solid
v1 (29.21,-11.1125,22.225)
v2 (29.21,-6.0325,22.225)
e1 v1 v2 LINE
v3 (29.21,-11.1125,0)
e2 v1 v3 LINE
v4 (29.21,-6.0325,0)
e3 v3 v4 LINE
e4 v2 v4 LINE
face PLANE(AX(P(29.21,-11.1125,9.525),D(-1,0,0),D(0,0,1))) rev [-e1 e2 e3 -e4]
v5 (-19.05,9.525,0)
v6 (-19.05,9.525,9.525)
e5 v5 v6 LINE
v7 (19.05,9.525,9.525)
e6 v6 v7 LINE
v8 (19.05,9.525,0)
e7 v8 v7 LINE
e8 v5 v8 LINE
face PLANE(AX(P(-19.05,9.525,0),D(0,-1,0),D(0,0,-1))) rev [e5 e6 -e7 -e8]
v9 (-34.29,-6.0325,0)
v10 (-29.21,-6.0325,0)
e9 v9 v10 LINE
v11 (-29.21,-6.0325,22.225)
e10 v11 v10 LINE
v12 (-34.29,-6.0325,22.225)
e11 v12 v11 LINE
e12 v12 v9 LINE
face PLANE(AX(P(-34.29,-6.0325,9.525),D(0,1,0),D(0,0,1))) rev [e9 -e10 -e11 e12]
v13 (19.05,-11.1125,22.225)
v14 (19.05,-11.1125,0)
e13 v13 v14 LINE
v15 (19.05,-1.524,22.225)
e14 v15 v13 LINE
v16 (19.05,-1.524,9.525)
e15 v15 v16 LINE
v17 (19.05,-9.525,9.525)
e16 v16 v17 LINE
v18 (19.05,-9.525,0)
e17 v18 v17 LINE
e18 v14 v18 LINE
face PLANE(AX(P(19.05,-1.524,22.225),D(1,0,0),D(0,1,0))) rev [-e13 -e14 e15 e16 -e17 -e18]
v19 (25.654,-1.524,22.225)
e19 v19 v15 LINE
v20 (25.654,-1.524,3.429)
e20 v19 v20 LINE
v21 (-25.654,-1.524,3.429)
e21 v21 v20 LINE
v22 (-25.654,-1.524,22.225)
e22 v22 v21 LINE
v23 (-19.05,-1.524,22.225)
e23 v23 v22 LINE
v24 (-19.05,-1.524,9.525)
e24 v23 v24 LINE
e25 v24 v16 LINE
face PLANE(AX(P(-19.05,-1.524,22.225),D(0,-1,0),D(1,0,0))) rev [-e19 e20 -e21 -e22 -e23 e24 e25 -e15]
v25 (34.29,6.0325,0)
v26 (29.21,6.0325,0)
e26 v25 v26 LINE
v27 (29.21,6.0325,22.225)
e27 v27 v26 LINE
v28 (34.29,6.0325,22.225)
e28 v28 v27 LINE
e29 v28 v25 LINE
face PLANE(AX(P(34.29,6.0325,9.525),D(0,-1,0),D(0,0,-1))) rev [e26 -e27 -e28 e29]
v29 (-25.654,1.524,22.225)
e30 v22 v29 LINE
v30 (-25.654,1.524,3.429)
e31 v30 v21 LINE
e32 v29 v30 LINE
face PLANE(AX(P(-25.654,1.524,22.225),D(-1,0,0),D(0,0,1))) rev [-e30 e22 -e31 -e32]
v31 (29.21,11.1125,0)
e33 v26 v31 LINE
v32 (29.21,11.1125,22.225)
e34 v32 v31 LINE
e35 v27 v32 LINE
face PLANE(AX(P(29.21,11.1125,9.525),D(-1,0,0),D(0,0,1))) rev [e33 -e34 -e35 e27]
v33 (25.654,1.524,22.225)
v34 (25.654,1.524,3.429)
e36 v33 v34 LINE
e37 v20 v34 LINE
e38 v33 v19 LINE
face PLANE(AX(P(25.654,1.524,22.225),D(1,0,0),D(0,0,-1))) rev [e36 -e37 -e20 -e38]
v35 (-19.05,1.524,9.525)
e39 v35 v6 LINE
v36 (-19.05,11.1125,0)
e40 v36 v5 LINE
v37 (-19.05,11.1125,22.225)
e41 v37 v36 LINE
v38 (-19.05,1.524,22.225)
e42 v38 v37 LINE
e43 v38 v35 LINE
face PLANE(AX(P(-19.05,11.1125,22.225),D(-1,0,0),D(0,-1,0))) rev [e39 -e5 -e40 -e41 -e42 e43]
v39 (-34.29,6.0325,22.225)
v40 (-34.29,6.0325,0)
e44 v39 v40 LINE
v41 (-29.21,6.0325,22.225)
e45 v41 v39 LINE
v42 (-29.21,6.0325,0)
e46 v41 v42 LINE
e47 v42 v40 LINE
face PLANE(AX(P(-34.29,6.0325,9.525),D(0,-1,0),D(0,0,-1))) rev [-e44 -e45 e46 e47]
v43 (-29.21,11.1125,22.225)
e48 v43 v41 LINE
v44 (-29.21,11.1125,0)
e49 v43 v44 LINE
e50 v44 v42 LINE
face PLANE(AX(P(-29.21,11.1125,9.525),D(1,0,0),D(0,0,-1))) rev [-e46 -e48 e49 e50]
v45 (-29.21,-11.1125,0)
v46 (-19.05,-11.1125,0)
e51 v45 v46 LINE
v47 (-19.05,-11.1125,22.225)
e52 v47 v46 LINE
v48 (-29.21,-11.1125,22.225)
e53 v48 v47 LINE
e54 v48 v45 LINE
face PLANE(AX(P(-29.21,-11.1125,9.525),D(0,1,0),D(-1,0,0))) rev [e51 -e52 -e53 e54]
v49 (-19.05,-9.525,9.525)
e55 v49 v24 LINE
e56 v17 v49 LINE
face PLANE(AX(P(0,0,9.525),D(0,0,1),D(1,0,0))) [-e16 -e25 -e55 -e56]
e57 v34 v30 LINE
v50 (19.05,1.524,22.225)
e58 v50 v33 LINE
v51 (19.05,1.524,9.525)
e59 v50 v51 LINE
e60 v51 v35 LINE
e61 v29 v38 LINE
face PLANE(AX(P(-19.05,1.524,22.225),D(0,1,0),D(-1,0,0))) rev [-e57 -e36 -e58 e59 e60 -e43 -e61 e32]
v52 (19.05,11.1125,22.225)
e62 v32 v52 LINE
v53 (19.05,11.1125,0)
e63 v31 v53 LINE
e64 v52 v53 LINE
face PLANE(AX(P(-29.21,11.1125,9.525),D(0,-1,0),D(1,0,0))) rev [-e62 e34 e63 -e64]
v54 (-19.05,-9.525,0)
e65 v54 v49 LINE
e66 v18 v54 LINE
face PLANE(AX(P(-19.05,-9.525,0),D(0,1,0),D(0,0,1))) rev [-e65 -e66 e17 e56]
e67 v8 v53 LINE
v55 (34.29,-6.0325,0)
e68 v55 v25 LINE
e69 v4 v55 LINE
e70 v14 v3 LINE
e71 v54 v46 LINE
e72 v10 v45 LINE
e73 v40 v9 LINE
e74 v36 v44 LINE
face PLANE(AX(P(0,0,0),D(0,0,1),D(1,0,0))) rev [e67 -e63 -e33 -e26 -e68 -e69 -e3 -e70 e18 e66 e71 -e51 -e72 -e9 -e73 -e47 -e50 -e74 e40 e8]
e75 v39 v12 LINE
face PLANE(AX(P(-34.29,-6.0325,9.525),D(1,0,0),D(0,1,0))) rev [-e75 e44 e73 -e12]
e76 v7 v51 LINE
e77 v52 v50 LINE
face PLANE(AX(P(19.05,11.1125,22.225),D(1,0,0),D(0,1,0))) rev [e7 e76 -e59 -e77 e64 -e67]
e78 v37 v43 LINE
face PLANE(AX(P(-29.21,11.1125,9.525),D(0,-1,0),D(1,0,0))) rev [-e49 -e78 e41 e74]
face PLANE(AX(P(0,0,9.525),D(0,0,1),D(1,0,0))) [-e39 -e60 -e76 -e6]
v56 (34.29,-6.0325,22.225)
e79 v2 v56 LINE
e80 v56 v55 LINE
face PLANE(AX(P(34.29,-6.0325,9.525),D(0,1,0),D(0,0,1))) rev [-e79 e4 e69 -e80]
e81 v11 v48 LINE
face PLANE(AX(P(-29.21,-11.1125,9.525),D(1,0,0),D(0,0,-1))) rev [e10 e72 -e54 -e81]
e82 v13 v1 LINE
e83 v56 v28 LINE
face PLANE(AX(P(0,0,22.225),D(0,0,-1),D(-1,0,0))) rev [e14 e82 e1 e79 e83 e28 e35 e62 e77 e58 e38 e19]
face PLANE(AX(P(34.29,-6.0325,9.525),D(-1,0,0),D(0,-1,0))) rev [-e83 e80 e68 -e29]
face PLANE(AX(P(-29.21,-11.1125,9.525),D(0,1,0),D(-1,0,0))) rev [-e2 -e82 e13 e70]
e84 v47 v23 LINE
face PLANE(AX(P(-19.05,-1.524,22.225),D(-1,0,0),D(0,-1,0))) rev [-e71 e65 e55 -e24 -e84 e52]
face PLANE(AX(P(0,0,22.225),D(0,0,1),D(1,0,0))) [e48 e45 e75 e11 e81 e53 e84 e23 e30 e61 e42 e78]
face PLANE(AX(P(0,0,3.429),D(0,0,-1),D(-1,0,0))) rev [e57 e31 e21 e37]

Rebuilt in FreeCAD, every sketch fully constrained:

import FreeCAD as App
import Part
import Sketcher
Q = App.Units.Quantity


def add_polygon(sketch, points):
    """Adds a closed chain of lines whose ends are joined by coincident constraints."""
    first, n = sketch.GeometryCount, len(points)
    for a, b in zip(points, points[1:] + points[:1]):
        sketch.addGeometry(Part.LineSegment(App.Vector(*a, 0), App.Vector(*b, 0)), False)
    for i in range(n):
        sketch.addConstraint(Sketcher.Constraint("Coincident", first + i, 2, first + (i + 1) % n, 1))

doc = App.newDocument("Part")
body = doc.addObject("PartDesign::Body", "Body")

# Sketch on XY plane
sketch1 = body.newObject("Sketcher::SketchObject", "Sketch")
sketch1.AttachmentSupport = (doc.getObject("XY_Plane"), [""])
sketch1.MapMode = "FlatFace"
add_polygon(sketch1, [(-29, -11), (29, -11), (29, -6), (34, -6), (34, 6), (29, 6), (29, 11), (-29, 11), (-29, 6), (-34, 6), (-34, -6), (-29, -6)])  # lines 0-11
sketch1.addConstraint([
    Sketcher.Constraint("Horizontal", 0),
    Sketcher.Constraint("Vertical", 1),
    Sketcher.Constraint("Horizontal", 2),
    Sketcher.Constraint("Vertical", 3),
    Sketcher.Constraint("Horizontal", 4),
    Sketcher.Constraint("Vertical", 5),
    Sketcher.Constraint("Horizontal", 6),
    Sketcher.Constraint("Vertical", 7),
    Sketcher.Constraint("Horizontal", 8),
    Sketcher.Constraint("Vertical", 9),
    Sketcher.Constraint("Horizontal", 10),
    Sketcher.Constraint("Vertical", 11),
    Sketcher.Constraint("Symmetric", 0, 2, 6, 2, -1, 1),
    Sketcher.Constraint("Symmetric", 2, 2, 8, 2, -1, 1),
    Sketcher.Constraint("Symmetric", 4, 2, 10, 2, -1, 1),
    Sketcher.Constraint("Symmetric", 4, 2, 7, 2, -2),
    Sketcher.Constraint("Equal", 10, 1),
    Sketcher.Constraint("DistanceX", 0, 1, 0, 2, Q("2.3 in")),
    Sketcher.Constraint("DistanceX", 2, 1, 2, 2, Q("0.2 in")),
    Sketcher.Constraint("DistanceY", 3, 1, 3, 2, Q("0.475 in")),
])
pad1 = body.newObject("PartDesign::Pad", "Pad")
pad1.Profile = sketch1
pad1.Length = Q("0.375 in")

# Sketch on XY plane
sketch2 = body.newObject("Sketcher::SketchObject", "Sketch001")
sketch2.AttachmentSupport = (doc.getObject("XY_Plane"), [""])
sketch2.MapMode = "FlatFace"
sketch2.AttachmentOffset = App.Placement(App.Vector(0, 0, 0.375 * 25.4), App.Rotation())
add_polygon(sketch2, [(-19.1, 11.1), (-29.2, 11.1), (-29.2, 6), (-34.3, 6), (-34.3, -6), (-29.2, -6), (-29.2, -11.1), (-19.1, -11.1), (-19.1, -1.5), (-25.7, -1.5), (-25.7, 1.5), (-19.1, 1.5)])  # lines 0-11
add_polygon(sketch2, [(19.1, -1.5), (19.1, -11.1), (29.2, -11.1), (29.2, -6), (34.3, -6), (34.3, 6), (29.2, 6), (29.2, 11.1), (19.1, 11.1), (19.1, 1.5), (25.7, 1.5), (25.7, -1.5)])  # lines 12-23
sketch2.addConstraint([
    Sketcher.Constraint("Horizontal", 0),
    Sketcher.Constraint("Vertical", 1),
    Sketcher.Constraint("Horizontal", 2),
    Sketcher.Constraint("Vertical", 3),
    Sketcher.Constraint("Horizontal", 4),
    Sketcher.Constraint("Vertical", 5),
    Sketcher.Constraint("Horizontal", 6),
    Sketcher.Constraint("Vertical", 7),
    Sketcher.Constraint("Horizontal", 8),
    Sketcher.Constraint("Vertical", 9),
    Sketcher.Constraint("Horizontal", 10),
    Sketcher.Constraint("Vertical", 11),
    Sketcher.Constraint("Vertical", 12),
    Sketcher.Constraint("Horizontal", 13),
    Sketcher.Constraint("Vertical", 14),
    Sketcher.Constraint("Horizontal", 15),
    Sketcher.Constraint("Vertical", 16),
    Sketcher.Constraint("Horizontal", 17),
    Sketcher.Constraint("Vertical", 18),
    Sketcher.Constraint("Horizontal", 19),
    Sketcher.Constraint("Vertical", 20),
    Sketcher.Constraint("Horizontal", 21),
    Sketcher.Constraint("Vertical", 22),
    Sketcher.Constraint("Horizontal", 23),
    Sketcher.Constraint("Symmetric", 11, 2, 12, 2, -1, 1),
    Sketcher.Constraint("Symmetric", 1, 2, 14, 2, -1, 1),
    Sketcher.Constraint("Symmetric", 3, 2, 16, 2, -1, 1),
    Sketcher.Constraint("Symmetric", 5, 2, 18, 2, -1, 1),
    Sketcher.Constraint("Symmetric", 7, 2, 20, 2, -1, 1),
    Sketcher.Constraint("Symmetric", 9, 2, 22, 2, -1, 1),
    Sketcher.Constraint("Symmetric", 6, 2, 12, 2, -2),
    Sketcher.Constraint("Symmetric", 4, 2, 14, 2, -2),
    Sketcher.Constraint("Horizontal", 10, 2, 20, 2),
    Sketcher.Constraint("Equal", 17, 1),
    Sketcher.Constraint("DistanceX", 0, 2, 0, 1, Q("0.4 in")),
    Sketcher.Constraint("DistanceX", 2, 2, 2, 1, Q("0.2 in")),
    Sketcher.Constraint("DistanceX", 8, 2, 8, 1, Q("0.26 in")),
    Sketcher.Constraint("DistanceY", 9, 1, 9, 2, Q("0.12 in")),
    Sketcher.Constraint("DistanceX", 6, 2, 12, 2, Q("1.5 in")),
    Sketcher.Constraint("DistanceY", 3, 2, 3, 1, Q("0.475 in")),
])
pad2 = body.newObject("PartDesign::Pad", "Pad001")
pad2.Profile = sketch2
pad2.Length = Q("0.5 in")

# Sketch on XY plane
sketch3 = body.newObject("Sketcher::SketchObject", "Sketch002")
sketch3.AttachmentSupport = (doc.getObject("XY_Plane"), [""])
sketch3.MapMode = "FlatFace"
sketch3.AttachmentOffset = App.Placement(App.Vector(0, 0, 0.375 * 25.4), App.Rotation())
add_polygon(sketch3, [(-25.7, 1.5), (-25.7, -1.5), (25.7, -1.5), (25.7, 1.5)])  # lines 0-3
sketch3.addConstraint([
    Sketcher.Constraint("Vertical", 0),
    Sketcher.Constraint("Horizontal", 1),
    Sketcher.Constraint("Vertical", 2),
    Sketcher.Constraint("Horizontal", 3),
    Sketcher.Constraint("Symmetric", 0, 2, 2, 2, -1, 1),
    Sketcher.Constraint("DistanceX", 1, 1, 1, 2, Q("2.02 in")),
    Sketcher.Constraint("DistanceY", 0, 2, 0, 1, Q("0.12 in")),
])
pocket1 = body.newObject("PartDesign::Pocket", "Pocket")
pocket1.Profile = sketch3
pocket1.Length = Q("0.24 in")

# Sketch on XY plane
sketch4 = body.newObject("Sketcher::SketchObject", "Sketch003")
sketch4.AttachmentSupport = (doc.getObject("XY_Plane"), [""])
sketch4.MapMode = "FlatFace"
sketch4.AttachmentOffset = App.Placement(App.Vector(0, 0, 0.375 * 25.4), App.Rotation())
add_polygon(sketch4, [(-19.1, 11.1), (-19.1, 9.5), (19.1, 9.5), (19.1, 11.1)])  # lines 0-3
add_polygon(sketch4, [(-19.1, -9.5), (-19.1, -11.1), (19.1, -11.1), (19.1, -9.5)])  # lines 4-7
sketch4.addConstraint([
    Sketcher.Constraint("Vertical", 0),
    Sketcher.Constraint("Horizontal", 1),
    Sketcher.Constraint("Vertical", 2),
    Sketcher.Constraint("Horizontal", 3),
    Sketcher.Constraint("Vertical", 4),
    Sketcher.Constraint("Horizontal", 5),
    Sketcher.Constraint("Vertical", 6),
    Sketcher.Constraint("Horizontal", 7),
    Sketcher.Constraint("Symmetric", 2, 2, 4, 2, -1, 1),
    Sketcher.Constraint("Symmetric", 0, 2, 6, 2, -1, 1),
    Sketcher.Constraint("Vertical", 3, 2, 4, 2),
    Sketcher.Constraint("DistanceX", 1, 1, 1, 2, Q("1.5 in")),
    Sketcher.Constraint("DistanceY", 0, 2, 0, 1, Q("0.0625 in")),
    Sketcher.Constraint("DistanceY", 6, 2, 1, 2, Q("0.75 in")),
])
pocket2 = body.newObject("PartDesign::Pocket", "Pocket001")
pocket2.Profile = sketch4
pocket2.Type = "ThroughAll"
pocket2.Midplane = True

doc.recompute()
